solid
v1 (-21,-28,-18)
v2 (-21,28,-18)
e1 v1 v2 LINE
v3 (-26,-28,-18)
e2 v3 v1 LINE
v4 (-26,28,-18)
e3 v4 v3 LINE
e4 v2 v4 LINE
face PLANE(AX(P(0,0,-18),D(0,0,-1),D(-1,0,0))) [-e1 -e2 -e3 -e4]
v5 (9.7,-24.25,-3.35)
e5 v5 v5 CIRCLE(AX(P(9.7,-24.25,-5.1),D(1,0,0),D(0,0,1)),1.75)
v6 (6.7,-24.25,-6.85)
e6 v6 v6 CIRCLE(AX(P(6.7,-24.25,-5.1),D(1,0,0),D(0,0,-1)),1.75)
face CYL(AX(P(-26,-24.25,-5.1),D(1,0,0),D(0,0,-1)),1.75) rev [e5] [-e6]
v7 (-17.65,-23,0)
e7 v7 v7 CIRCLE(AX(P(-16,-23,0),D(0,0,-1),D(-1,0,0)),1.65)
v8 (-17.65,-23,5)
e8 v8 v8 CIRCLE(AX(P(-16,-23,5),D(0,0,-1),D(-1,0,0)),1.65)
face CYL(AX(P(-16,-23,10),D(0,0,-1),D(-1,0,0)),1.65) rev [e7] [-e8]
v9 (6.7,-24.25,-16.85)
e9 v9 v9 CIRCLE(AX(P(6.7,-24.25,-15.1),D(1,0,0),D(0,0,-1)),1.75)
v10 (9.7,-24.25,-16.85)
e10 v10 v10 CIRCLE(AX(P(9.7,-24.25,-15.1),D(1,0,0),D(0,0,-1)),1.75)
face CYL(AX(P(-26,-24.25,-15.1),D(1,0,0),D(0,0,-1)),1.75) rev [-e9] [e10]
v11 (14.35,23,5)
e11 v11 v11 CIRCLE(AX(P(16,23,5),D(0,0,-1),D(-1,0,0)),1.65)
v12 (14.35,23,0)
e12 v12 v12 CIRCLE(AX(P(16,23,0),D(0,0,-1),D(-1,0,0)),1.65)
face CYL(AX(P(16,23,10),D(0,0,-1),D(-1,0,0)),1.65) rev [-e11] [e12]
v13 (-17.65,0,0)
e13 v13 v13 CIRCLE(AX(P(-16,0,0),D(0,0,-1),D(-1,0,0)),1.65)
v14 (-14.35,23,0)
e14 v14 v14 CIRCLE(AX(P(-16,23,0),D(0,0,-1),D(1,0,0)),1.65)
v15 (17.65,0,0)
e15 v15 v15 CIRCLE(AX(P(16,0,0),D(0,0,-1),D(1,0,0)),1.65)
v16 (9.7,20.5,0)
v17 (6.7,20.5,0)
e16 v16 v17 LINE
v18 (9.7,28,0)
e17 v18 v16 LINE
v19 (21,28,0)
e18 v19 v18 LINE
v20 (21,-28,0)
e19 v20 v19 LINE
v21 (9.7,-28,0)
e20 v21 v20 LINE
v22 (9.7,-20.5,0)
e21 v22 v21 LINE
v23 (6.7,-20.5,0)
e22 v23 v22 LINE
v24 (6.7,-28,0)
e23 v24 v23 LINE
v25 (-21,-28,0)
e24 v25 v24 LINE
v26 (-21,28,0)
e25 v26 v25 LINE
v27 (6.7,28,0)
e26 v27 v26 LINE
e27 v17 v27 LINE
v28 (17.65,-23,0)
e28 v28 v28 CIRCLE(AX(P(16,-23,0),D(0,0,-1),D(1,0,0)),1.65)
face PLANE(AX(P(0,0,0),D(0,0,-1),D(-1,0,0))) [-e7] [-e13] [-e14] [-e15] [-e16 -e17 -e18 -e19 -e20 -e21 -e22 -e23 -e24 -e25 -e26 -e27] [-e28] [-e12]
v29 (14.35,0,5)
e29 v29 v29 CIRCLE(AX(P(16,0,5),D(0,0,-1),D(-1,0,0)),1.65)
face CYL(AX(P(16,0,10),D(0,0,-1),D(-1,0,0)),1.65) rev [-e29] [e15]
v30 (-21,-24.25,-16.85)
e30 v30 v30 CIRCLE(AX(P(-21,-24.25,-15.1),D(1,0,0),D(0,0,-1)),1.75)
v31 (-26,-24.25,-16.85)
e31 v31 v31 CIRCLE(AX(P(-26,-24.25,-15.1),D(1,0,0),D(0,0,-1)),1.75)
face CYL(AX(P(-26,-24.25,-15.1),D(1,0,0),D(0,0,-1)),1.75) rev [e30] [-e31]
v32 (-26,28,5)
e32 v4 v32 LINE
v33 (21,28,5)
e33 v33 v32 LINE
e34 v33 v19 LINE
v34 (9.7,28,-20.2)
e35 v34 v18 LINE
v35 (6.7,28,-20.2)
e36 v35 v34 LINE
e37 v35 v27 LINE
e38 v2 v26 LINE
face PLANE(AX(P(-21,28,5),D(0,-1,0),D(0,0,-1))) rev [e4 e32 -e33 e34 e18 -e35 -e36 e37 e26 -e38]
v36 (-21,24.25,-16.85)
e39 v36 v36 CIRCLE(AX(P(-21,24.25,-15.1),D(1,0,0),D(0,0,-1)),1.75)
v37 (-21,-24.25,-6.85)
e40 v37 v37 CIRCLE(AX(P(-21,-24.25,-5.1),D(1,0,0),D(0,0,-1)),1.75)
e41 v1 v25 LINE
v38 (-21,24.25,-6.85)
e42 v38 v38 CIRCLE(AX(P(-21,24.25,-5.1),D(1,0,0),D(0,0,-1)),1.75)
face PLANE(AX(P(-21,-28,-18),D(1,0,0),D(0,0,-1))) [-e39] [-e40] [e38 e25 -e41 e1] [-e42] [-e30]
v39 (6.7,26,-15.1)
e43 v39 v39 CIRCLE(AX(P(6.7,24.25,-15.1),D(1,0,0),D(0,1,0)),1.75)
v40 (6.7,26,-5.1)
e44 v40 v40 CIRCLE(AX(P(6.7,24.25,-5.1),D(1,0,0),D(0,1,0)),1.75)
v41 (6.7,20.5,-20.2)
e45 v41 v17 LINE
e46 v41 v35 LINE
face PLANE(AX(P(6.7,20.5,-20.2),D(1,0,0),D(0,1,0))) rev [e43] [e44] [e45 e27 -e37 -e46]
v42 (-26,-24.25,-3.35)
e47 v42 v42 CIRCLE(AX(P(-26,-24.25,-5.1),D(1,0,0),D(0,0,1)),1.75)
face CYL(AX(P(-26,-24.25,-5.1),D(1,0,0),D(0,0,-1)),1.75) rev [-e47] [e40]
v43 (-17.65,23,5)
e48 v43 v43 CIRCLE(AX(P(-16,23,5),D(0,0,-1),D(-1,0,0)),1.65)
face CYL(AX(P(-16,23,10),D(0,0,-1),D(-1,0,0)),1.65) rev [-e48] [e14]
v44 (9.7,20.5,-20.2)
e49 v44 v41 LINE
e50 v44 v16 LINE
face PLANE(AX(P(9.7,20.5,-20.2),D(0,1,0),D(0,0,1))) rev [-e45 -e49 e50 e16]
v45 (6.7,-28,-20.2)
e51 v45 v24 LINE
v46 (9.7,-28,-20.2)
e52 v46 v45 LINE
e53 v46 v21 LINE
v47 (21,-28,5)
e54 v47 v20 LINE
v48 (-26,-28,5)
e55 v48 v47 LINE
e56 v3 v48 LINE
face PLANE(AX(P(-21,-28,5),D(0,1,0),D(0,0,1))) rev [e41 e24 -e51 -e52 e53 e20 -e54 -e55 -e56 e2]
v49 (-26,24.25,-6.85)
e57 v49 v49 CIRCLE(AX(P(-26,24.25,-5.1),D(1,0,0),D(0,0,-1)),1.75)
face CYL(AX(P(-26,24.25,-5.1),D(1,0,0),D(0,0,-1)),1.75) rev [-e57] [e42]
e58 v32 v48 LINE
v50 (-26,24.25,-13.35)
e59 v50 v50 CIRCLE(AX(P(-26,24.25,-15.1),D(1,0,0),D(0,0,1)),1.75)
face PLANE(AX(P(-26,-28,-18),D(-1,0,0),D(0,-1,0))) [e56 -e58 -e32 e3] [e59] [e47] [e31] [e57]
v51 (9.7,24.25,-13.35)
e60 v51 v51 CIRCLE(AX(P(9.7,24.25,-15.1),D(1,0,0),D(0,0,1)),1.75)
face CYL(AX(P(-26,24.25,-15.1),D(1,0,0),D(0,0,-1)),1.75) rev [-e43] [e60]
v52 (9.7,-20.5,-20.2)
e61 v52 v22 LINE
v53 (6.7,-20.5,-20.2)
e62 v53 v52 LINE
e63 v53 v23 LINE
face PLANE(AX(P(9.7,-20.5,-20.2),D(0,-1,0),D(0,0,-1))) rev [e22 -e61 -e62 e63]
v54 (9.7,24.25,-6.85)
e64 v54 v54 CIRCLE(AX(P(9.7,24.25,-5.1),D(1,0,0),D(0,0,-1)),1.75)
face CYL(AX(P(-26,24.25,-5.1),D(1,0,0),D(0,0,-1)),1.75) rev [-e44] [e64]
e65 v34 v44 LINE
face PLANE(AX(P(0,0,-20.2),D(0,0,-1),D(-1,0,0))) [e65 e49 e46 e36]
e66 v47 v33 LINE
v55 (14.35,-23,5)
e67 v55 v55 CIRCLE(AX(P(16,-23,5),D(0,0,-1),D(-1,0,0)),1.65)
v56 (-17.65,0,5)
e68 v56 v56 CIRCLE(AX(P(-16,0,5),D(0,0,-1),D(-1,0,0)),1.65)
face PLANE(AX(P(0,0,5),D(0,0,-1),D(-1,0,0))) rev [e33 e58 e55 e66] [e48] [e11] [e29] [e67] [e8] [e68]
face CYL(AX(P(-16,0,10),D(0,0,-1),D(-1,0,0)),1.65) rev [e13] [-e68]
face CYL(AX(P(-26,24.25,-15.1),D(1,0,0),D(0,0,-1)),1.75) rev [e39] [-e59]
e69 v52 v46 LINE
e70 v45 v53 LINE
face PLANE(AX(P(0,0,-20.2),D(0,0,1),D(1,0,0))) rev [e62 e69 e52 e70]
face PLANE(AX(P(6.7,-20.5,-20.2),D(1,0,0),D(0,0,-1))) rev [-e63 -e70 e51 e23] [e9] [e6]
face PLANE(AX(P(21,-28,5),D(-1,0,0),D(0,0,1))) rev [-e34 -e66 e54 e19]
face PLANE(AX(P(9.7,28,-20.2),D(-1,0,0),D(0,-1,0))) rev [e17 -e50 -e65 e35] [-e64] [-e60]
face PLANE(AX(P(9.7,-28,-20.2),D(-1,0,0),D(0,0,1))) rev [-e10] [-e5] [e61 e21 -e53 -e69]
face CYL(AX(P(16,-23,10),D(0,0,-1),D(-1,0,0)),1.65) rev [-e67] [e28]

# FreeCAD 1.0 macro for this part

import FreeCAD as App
import Part
import Sketcher

V = App.Vector
Q = App.Units.Quantity


def add_polygon(sketch, points):
    """Adds a closed chain of lines whose ends are joined by coincident constraints."""
    first, n = sketch.GeometryCount, len(points)
    for a, b in zip(points, points[1:] + points[:1]):
        sketch.addGeometry(Part.LineSegment(App.Vector(*a, 0), App.Vector(*b, 0)), False)
    for i in range(n):
        sketch.addConstraint(Sketcher.Constraint("Coincident", first + i, 2, first + (i + 1) % n, 1))

doc = App.newDocument("Part")
body = doc.addObject("PartDesign::Body", "Body")

# Sketch on XY plane
sketch1 = body.newObject("Sketcher::SketchObject", "Sketch")
sketch1.AttachmentSupport = (doc.getObject("XY_Plane"), [""])
sketch1.MapMode = "FlatFace"
add_polygon(sketch1, [(-21, 28), (-21, -28), (21, -28), (21, 28)])  # lines 0-3
sketch1.addConstraint(Sketcher.Constraint("Vertical", 0))
sketch1.addConstraint(Sketcher.Constraint("Horizontal", 1))
sketch1.addConstraint(Sketcher.Constraint("Vertical", 2))
sketch1.addConstraint(Sketcher.Constraint("Horizontal", 3))
sketch1.addConstraint(Sketcher.Constraint("Symmetric", 0, 2, 2, 2, -1, 1))
sketch1.addConstraint(Sketcher.Constraint("DistanceX", 1, 1, 1, 2, Q("42 mm")))
sketch1.addConstraint(Sketcher.Constraint("DistanceY", 0, 2, 0, 1, Q("56 mm")))
pad1 = body.newObject("PartDesign::Pad", "Pad")
pad1.Profile = sketch1
pad1.Length = 5

# Sketch on XY plane
sketch2 = body.newObject("Sketcher::SketchObject", "Sketch001")
sketch2.AttachmentSupport = (doc.getObject("XY_Plane"), [""])
sketch2.MapMode = "FlatFace"
sketch2.AttachmentOffset = App.Placement(V(0, 0, 5), App.Rotation())
add_polygon(sketch2, [(-26, 28), (-26, -28), (-21, -28), (-21, 28)])  # lines 0-3
sketch2.addConstraint(Sketcher.Constraint("Vertical", 0))
sketch2.addConstraint(Sketcher.Constraint("Horizontal", 1))
sketch2.addConstraint(Sketcher.Constraint("Vertical", 2))
sketch2.addConstraint(Sketcher.Constraint("Horizontal", 3))
sketch2.addConstraint(Sketcher.Constraint("DistanceX", 1, 1, 1, 2, Q("5 mm")))
sketch2.addConstraint(Sketcher.Constraint("DistanceY", 0, 2, 0, 1, Q("56 mm")))
sketch2.addConstraint(Sketcher.Constraint("DistanceX", 0, 2, -1, 1, Q("26 mm")))
sketch2.addConstraint(Sketcher.Constraint("DistanceY", 0, 2, -1, 1, Q("28 mm")))
pad2 = body.newObject("PartDesign::Pad", "Pad001")
pad2.Profile = sketch2
pad2.Length = 23
pad2.Reversed = True

# Sketch on XY plane
sketch3 = body.newObject("Sketcher::SketchObject", "Sketch002")
sketch3.AttachmentSupport = (doc.getObject("XY_Plane"), [""])
sketch3.MapMode = "FlatFace"
add_polygon(sketch3, [(9.7, -20.5), (9.7, -28), (6.7, -28), (6.7, -20.5)])  # lines 0-3
add_polygon(sketch3, [(9.7, 28), (9.7, 20.5), (6.7, 20.5), (6.7, 28)])  # lines 4-7
sketch3.addConstraint(Sketcher.Constraint("Vertical", 0))
sketch3.addConstraint(Sketcher.Constraint("Horizontal", 1))
sketch3.addConstraint(Sketcher.Constraint("Vertical", 2))
sketch3.addConstraint(Sketcher.Constraint("Horizontal", 3))
sketch3.addConstraint(Sketcher.Constraint("Vertical", 4))
sketch3.addConstraint(Sketcher.Constraint("Horizontal", 5))
sketch3.addConstraint(Sketcher.Constraint("Vertical", 6))
sketch3.addConstraint(Sketcher.Constraint("Horizontal", 7))
sketch3.addConstraint(Sketcher.Constraint("Symmetric", 3, 2, 4, 2, -1))
sketch3.addConstraint(Sketcher.Constraint("Symmetric", 1, 2, 6, 2, -1))
sketch3.addConstraint(Sketcher.Constraint("DistanceX", 1, 2, 1, 1, Q("3 mm")))
sketch3.addConstraint(Sketcher.Constraint("DistanceY", 0, 2, 0, 1, Q("7.5 mm")))
sketch3.addConstraint(Sketcher.Constraint("DistanceY", 0, 2, -1, 1, Q("28 mm")))
sketch3.addConstraint(Sketcher.Constraint("DistanceX", -1, 1, 0, 2, Q("9.7 mm")))
pad3 = body.newObject("PartDesign::Pad", "Pad002")
pad3.Profile = sketch3
pad3.Length = 20.2
pad3.Reversed = True

# Sketch on YZ plane
sketch4 = body.newObject("Sketcher::SketchObject", "Sketch003")
sketch4.AttachmentSupport = (doc.getObject("YZ_Plane"), [""])
sketch4.MapMode = "FlatFace"
sketch4.AttachmentOffset = App.Placement(V(0, 0, 9.7), App.Rotation())
sketch4.addGeometry(Part.Circle(V(24.2, -5.1, 0), V(0, 0, 1), 1.8), False)
sketch4.addGeometry(Part.Circle(V(24.2, -15.1, 0), V(0, 0, 1), 1.8), False)
sketch4.addGeometry(Part.Circle(V(-24.2, -15.1, 0), V(0, 0, 1), 1.8), False)
sketch4.addGeometry(Part.Circle(V(-24.2, -5.1, 0), V(0, 0, 1), 1.8), False)
sketch4.addConstraint(Sketcher.Constraint("Equal", 0, 1))
sketch4.addConstraint(Sketcher.Constraint("Equal", 1, 2))
sketch4.addConstraint(Sketcher.Constraint("Equal", 2, 3))
sketch4.addConstraint(Sketcher.Constraint("Symmetric", 1, 3, 2, 3, -2))
sketch4.addConstraint(Sketcher.Constraint("Symmetric", 0, 3, 3, 3, -2))
sketch4.addConstraint(Sketcher.Constraint("Vertical", 0, 3, 1, 3))
sketch4.addConstraint(Sketcher.Constraint("Diameter", 0, Q("3.5 mm")))
sketch4.addConstraint(Sketcher.Constraint("DistanceY", 1, 3, 0, 3, Q("10 mm")))
sketch4.addConstraint(Sketcher.Constraint("DistanceY", 0, 3, -1, 1, Q("5.1 mm")))
sketch4.addConstraint(Sketcher.Constraint("DistanceX", 2, 3, 1, 3, Q("48.5 mm")))
pocket1 = body.newObject("PartDesign::Pocket", "Pocket")
pocket1.Profile = sketch4
pocket1.Type = "ThroughAll"

# Sketch on XY plane
sketch5 = body.newObject("Sketcher::SketchObject", "Sketch004")
sketch5.AttachmentSupport = (doc.getObject("XY_Plane"), [""])
sketch5.MapMode = "FlatFace"
sketch5.addGeometry(Part.Circle(V(16, 23, 0), V(0, 0, 1), 1.6), False)
sketch5.addGeometry(Part.Circle(V(16, -23, 0), V(0, 0, 1), 1.6), False)
sketch5.addGeometry(Part.Circle(V(-16, -23, 0), V(0, 0, 1), 1.6), False)
sketch5.addGeometry(Part.Circle(V(-16, 23, 0), V(0, 0, 1), 1.6), False)
sketch5.addGeometry(Part.Circle(V(-16, 0, 0), V(0, 0, 1), 1.6), False)
sketch5.addGeometry(Part.Circle(V(16, 0, 0), V(0, 0, 1), 1.6), False)
sketch5.addConstraint(Sketcher.Constraint("Equal", 0, 1))
sketch5.addConstraint(Sketcher.Constraint("Equal", 1, 2))
sketch5.addConstraint(Sketcher.Constraint("Equal", 2, 3))
sketch5.addConstraint(Sketcher.Constraint("Equal", 3, 4))
sketch5.addConstraint(Sketcher.Constraint("Equal", 4, 5))
sketch5.addConstraint(Sketcher.Constraint("Symmetric", 0, 3, 2, 3, -1, 1))
sketch5.addConstraint(Sketcher.Constraint("Symmetric", 1, 3, 3, 3, -1, 1))
sketch5.addConstraint(Sketcher.Constraint("Symmetric", 4, 3, 5, 3, -1, 1))
sketch5.addConstraint(Sketcher.Constraint("Symmetric", 1, 3, 2, 3, -2))
sketch5.addConstraint(Sketcher.Constraint("PointOnObject", 4, 3, -1))
sketch5.addConstraint(Sketcher.Constraint("Vertical", 3, 3, 4, 3))
sketch5.addConstraint(Sketcher.Constraint("Diameter", 0, Q("3.3 mm")))
sketch5.addConstraint(Sketcher.Constraint("DistanceX", -1, 1, 0, 3, Q("16 mm")))
sketch5.addConstraint(Sketcher.Constraint("DistanceY", -1, 1, 0, 3, Q("23 mm")))
pocket2 = body.newObject("PartDesign::Pocket", "Pocket001")
pocket2.Profile = sketch5
pocket2.Length = 10
pocket2.Reversed = True

doc.recompute()
